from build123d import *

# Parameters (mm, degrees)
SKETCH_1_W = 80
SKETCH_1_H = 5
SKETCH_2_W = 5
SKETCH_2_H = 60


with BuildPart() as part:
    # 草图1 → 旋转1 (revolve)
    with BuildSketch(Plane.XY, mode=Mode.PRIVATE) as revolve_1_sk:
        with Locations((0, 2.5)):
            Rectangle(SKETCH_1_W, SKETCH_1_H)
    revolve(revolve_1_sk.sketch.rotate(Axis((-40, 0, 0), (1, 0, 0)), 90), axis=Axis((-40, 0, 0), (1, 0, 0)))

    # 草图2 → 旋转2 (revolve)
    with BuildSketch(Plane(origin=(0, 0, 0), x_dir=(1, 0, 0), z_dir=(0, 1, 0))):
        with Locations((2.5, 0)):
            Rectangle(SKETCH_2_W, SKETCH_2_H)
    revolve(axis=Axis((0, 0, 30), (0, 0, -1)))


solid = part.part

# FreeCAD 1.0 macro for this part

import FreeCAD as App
import Part
import Sketcher

V = App.Vector


def add_polygon(sketch, points):
    """Adds a closed chain of lines whose ends are joined by coincident constraints."""
    first, n = sketch.GeometryCount, len(points)
    for a, b in zip(points, points[1:] + points[:1]):
        sketch.addGeometry(Part.LineSegment(App.Vector(*a, 0), App.Vector(*b, 0)), False)
    for i in range(n):
        sketch.addConstraint(Sketcher.Constraint("Coincident", first + i, 2, first + (i + 1) % n, 1))

doc = App.newDocument("Part")
body = doc.addObject("PartDesign::Body", "Body")

# Sketch on XY plane
sketch1 = doc.addObject("Sketcher::SketchObject", "Sketch")
body.addObject(sketch1)
sketch1.AttachmentSupport = (doc.XY_Plane, [""])
sketch1.MapMode = "FlatFace"
add_polygon(sketch1, [(-40, 5), (-40, 0), (40, 0), (40, 5)])  # lines 0-3
sketch1.addConstraint([
    Sketcher.Constraint("Vertical", 0),
    Sketcher.Constraint("Horizontal", 1),
    Sketcher.Constraint("Vertical", 2),
    Sketcher.Constraint("Horizontal", 3),
    Sketcher.Constraint("Symmetric", 0, 2, 1, 2, -1, 1),
    Sketcher.Constraint("DistanceX", 1, 1, 1, 2, 80.0),
    Sketcher.Constraint("DistanceY", 0, 2, 0, 1, 5.0),
])
revolution = doc.addObject("PartDesign::Revolution", "Revolution")
body.addObject(revolution)
revolution.Profile = sketch1
revolution.ReferenceAxis = (sketch1, ["H_Axis"])
revolution.Angle = 360

# Sketch on XZ plane
sketch2 = doc.addObject("Sketcher::SketchObject", "Sketch001")
body.addObject(sketch2)
sketch2.AttachmentSupport = (doc.XZ_Plane, [""])
sketch2.MapMode = "FlatFace"
add_polygon(sketch2, [(0, -30), (0, 30), (5, 30), (5, -30)])  # lines 0-3
sketch2.addConstraint([
    Sketcher.Constraint("Vertical", 0),
    Sketcher.Constraint("Horizontal", 1),
    Sketcher.Constraint("Vertical", 2),
    Sketcher.Constraint("Horizontal", 3),
    Sketcher.Constraint("Symmetric", 0, 2, 3, 2, -1, 1),
    Sketcher.Constraint("DistanceX", 1, 1, 1, 2, 5.0),
    Sketcher.Constraint("DistanceY", 0, 1, 0, 2, 60.0),
])
revolution2 = doc.addObject("PartDesign::Revolution", "Revolution001")
body.addObject(revolution2)
revolution2.Profile = sketch2
revolution2.ReferenceAxis = (sketch2, ["V_Axis"])
revolution2.Angle = 360

doc.recompute()
